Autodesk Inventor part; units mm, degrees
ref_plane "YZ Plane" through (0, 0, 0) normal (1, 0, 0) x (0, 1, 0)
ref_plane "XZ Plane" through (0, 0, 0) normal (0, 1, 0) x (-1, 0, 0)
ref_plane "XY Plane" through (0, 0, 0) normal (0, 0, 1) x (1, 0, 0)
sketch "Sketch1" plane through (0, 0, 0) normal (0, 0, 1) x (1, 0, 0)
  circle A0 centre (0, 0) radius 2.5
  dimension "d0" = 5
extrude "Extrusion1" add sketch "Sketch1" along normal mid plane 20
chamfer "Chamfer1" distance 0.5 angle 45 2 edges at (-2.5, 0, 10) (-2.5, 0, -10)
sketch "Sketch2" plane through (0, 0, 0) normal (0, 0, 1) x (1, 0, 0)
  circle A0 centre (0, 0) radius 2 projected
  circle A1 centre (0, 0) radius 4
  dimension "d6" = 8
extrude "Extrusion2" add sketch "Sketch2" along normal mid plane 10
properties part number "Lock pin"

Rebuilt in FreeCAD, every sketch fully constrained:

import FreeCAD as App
import Part
import Sketcher
from FreeCAD import Vector


def edges_at(feature, points):
    """Names of the edges that pass closest to the given points."""
    edges = feature.Shape.Edges
    near = lambda p: min(range(len(edges)), key=lambda i: edges[i].distToShape(Part.Vertex(*p))[0])
    return sorted({f"Edge{near(p) + 1}" for p in points})

doc = App.newDocument("Part")
params = doc.addObject("Spreadsheet::Sheet", "Params")
for row, (alias, value) in enumerate([
    ("sketch1_diameter", "5 mm"),
    ("pad1_length", "20 mm"),
    ("chamfer_size", "0.5 mm"),
    ("sketch2_diameter", "8 mm"),
    ("sketch2_diameter2", "4 mm"),
    ("pad2_length", "10 mm"),
], start=1):
    params.set(f"A{row}", alias)
    params.set(f"B{row}", "=" + value)
    params.setAlias(f"B{row}", alias)

body = doc.addObject("PartDesign::Body", "Body")

# Sketch on XY plane
sketch1 = body.newObject("Sketcher::SketchObject", "Sketch")
sketch1.AttachmentSupport = (doc.getObject("XY_Plane"), [""])
sketch1.MapMode = "FlatFace"
sketch1.addGeometry(Part.Circle(Vector(0, 0, 0), Vector(0, 0, 1), 2.5), False)
sketch1.addConstraint([
    Sketcher.Constraint("Coincident", 0, 3, -1, 1),
    Sketcher.Constraint("Diameter", 0, 5.0),
])
sketch1.setExpression("Constraints[1]", "Params.sketch1_diameter")
pad1 = body.newObject("PartDesign::Pad", "Pad")
pad1.Profile = sketch1
pad1.setExpression("Length", "Params.pad1_length")
pad1.Midplane = True
doc.recompute()

chamfer = body.newObject("PartDesign::Chamfer", "Chamfer")
chamfer.Base = (pad1, edges_at(pad1, [(-2.5, 0, 10), (-2.5, 0, -10)]))
chamfer.setExpression("Size", "Params.chamfer_size")

# Sketch on XY plane
sketch2 = body.newObject("Sketcher::SketchObject", "Sketch001")
sketch2.AttachmentSupport = (doc.getObject("XY_Plane"), [""])
sketch2.MapMode = "FlatFace"
sketch2.addGeometry([
    Part.Circle(Vector(0, 0, 0), Vector(0, 0, 1), 4),
    Part.Circle(Vector(0, 0, 0), Vector(0, 0, 1), 2),
], False)
sketch2.addConstraint([
    Sketcher.Constraint("Coincident", 0, 3, -1, 1),
    Sketcher.Constraint("Coincident", 1, 3, -1, 1),
    Sketcher.Constraint("Diameter", 0, 8.0),
    Sketcher.Constraint("Diameter", 1, 4.0),
])
sketch2.setExpression("Constraints[2]", "Params.sketch2_diameter")
sketch2.setExpression("Constraints[3]", "Params.sketch2_diameter2")
pad2 = body.newObject("PartDesign::Pad", "Pad001")
pad2.Profile = sketch2
pad2.setExpression("Length", "Params.pad2_length")
pad2.Midplane = True

doc.recompute()
